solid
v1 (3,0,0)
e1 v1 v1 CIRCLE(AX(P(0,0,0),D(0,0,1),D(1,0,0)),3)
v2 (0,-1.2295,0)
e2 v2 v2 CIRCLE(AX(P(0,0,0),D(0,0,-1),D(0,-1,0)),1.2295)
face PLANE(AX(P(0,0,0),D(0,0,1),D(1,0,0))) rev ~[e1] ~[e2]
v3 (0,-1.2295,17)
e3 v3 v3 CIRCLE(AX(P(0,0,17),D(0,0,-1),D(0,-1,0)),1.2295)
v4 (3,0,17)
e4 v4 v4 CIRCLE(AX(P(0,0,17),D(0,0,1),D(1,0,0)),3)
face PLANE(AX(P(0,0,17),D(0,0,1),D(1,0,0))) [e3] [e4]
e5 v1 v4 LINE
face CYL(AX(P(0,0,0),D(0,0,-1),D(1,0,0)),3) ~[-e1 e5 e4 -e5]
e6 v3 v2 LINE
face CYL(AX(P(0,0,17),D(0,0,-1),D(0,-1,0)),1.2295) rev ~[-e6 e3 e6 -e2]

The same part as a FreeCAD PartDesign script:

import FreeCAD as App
import Part
import Sketcher

V = App.Vector
Q = App.Units.Quantity

doc = App.newDocument("Part")
body = doc.addObject("PartDesign::Body", "Body")

sketch1 = doc.addObject("Sketcher::SketchObject", "Sketch")
body.addObject(sketch1)
sketch1.AttachmentSupport = (doc.XY_Plane, [""])
sketch1.MapMode = "FlatFace"
sketch1.addGeometry(Part.Circle(V(0, 0, 0), V(0, 0, 1), 3), False)
sketch1.addConstraint([
    Sketcher.Constraint("Coincident", 0, 3, -1, 1),
    Sketcher.Constraint("Diameter", 0, Q("6 mm")),
])
pad1 = doc.addObject("PartDesign::Pad", "Pad")
body.addObject(pad1)
pad1.Profile = sketch1
pad1.Length = 17

sketch2 = doc.addObject("Sketcher::SketchObject", "Sketch001")
body.addObject(sketch2)
sketch2.AttachmentSupport = (doc.XY_Plane, [""])
sketch2.MapMode = "FlatFace"
sketch2.AttachmentOffset = App.Placement(V(0, 0, 17), App.Rotation())
sketch2.addGeometry(Part.Circle(V(0, 0, 0), V(0, 0, 1), 1.2), False)
sketch2.addConstraint([
    Sketcher.Constraint("Coincident", 0, 3, -1, 1),
    Sketcher.Constraint("Diameter", 0, Q("2.459 mm")),
])
doc.recompute()
hole = doc.addObject("PartDesign::Hole", "Hole")
body.addObject(hole)
hole.Profile = sketch2
hole.ThreadType = "None"
hole.Diameter = 2.459
hole.DepthType = "ThroughAll"

doc.recompute()
